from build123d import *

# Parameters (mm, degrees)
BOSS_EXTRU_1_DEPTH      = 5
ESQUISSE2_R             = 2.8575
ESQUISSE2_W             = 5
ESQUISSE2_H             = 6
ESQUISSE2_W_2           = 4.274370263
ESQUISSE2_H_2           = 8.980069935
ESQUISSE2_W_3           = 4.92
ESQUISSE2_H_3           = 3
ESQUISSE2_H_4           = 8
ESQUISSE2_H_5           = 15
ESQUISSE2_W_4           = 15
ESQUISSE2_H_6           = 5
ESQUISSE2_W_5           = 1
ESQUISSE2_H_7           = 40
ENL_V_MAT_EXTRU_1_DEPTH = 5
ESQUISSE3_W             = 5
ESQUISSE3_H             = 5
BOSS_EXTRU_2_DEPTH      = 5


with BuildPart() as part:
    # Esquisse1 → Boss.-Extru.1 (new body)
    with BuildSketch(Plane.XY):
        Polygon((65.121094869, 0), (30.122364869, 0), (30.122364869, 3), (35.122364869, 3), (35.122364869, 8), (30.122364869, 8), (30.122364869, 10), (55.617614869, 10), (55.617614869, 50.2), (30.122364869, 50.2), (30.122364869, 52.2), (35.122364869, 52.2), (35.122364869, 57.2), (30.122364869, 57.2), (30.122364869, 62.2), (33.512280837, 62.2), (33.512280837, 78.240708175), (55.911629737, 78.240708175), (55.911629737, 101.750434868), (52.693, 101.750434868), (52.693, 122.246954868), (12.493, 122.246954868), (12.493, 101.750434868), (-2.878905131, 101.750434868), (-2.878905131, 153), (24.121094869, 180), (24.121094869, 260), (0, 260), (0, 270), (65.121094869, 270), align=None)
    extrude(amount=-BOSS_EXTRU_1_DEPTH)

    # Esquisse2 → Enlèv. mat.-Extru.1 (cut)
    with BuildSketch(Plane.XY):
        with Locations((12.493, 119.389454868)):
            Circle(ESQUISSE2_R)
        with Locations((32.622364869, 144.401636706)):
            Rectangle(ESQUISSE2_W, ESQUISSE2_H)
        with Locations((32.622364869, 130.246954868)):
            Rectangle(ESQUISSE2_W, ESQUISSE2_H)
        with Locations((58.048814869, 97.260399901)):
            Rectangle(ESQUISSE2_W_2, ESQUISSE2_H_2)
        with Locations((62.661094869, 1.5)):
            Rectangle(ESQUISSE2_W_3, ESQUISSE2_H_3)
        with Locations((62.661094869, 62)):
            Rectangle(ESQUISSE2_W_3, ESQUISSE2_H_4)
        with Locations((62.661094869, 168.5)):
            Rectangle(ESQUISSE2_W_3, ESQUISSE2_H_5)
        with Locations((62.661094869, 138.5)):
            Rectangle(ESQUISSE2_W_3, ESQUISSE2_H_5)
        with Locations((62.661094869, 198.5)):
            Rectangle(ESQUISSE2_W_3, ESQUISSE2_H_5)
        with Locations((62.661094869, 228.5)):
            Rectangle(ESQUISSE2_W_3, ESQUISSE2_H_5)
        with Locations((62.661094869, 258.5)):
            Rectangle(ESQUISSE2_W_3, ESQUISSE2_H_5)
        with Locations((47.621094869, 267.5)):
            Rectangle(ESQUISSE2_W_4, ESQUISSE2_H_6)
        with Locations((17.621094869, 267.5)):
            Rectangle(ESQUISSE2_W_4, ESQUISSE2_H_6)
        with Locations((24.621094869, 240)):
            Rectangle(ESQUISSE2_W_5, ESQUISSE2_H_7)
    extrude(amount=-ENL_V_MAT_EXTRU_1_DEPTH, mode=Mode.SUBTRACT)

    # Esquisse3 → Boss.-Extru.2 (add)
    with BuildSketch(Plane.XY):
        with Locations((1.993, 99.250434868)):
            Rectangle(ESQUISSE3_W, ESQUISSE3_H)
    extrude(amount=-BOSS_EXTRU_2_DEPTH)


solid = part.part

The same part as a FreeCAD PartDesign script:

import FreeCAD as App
import Part
import Sketcher

V = App.Vector
Q = App.Units.Quantity

doc = App.newDocument("Part")
params = doc.addObject("Spreadsheet::Sheet", "Params")
for row, (alias, value) in enumerate([
    ("sketch1_width", "5 mm"),
    ("sketch1_height", "270 mm"),
    ("sketch1_height2", "10 mm"),
    ("sketch1_height3", "80 mm"),
    ("sketch1_height4", "2 mm"),
    ("pad1_length", "5 mm"),
    ("sketch2_width", "5 mm"),
    ("sketch2_width2", "15 mm"),
    ("sketch2_width3", "1 mm"),
    ("sketch2_height", "6 mm"),
    ("sketch2_height2", "3 mm"),
    ("pocket1_length", "5 mm"),
    ("sketch3_width", "5 mm"),
    ("pad2_length", "5 mm"),
], start=1):
    params.set(f"A{row}", alias)
    params.set(f"B{row}", "=" + value)
    params.setAlias(f"B{row}", alias)

body = doc.addObject("PartDesign::Body", "Body")

# Sketch on XY plane
sketch1 = body.newObject("Sketcher::SketchObject", "Sketch")
sketch1.AttachmentSupport = (doc.getObject("XY_Plane"), [""])
sketch1.MapMode = "FlatFace"
sketch1.addGeometry([
    Part.LineSegment(V(30.1, 0, 0), V(65.1, 0, 0)),  # 0
    Part.LineSegment(V(65.1, 0, 0), V(65.1, 270, 0)),  # 1
    Part.LineSegment(V(65.1, 270, 0), V(0, 270, 0)),  # 2
    Part.LineSegment(V(0, 270, 0), V(0, 260, 0)),  # 3
    Part.LineSegment(V(0, 260, 0), V(24.1, 260, 0)),  # 4
    Part.LineSegment(V(24.1, 260, 0), V(24.1, 180, 0)),  # 5
    Part.LineSegment(V(24.1, 180, 0), V(-2.9, 153, 0)),  # 6
    Part.LineSegment(V(-2.9, 153, 0), V(-2.9, 101.8, 0)),  # 7
    Part.LineSegment(V(-2.9, 101.8, 0), V(12.5, 101.8, 0)),  # 8
    Part.LineSegment(V(12.5, 101.8, 0), V(12.5, 122.2, 0)),  # 9
    Part.LineSegment(V(12.5, 122.2, 0), V(52.7, 122.2, 0)),  # 10
    Part.LineSegment(V(52.7, 122.2, 0), V(52.7, 101.8, 0)),  # 11
    Part.LineSegment(V(52.7, 101.8, 0), V(55.9, 101.8, 0)),  # 12
    Part.LineSegment(V(55.9, 101.8, 0), V(55.9, 78.2, 0)),  # 13
    Part.LineSegment(V(55.9, 78.2, 0), V(33.5, 78.2, 0)),  # 14
    Part.LineSegment(V(33.5, 78.2, 0), V(33.5, 62.2, 0)),  # 15
    Part.LineSegment(V(33.5, 62.2, 0), V(30.1, 62.2, 0)),  # 16
    Part.LineSegment(V(30.1, 62.2, 0), V(30.1, 57.2, 0)),  # 17
    Part.LineSegment(V(30.1, 57.2, 0), V(35.1, 57.2, 0)),  # 18
    Part.LineSegment(V(35.1, 57.2, 0), V(35.1, 52.2, 0)),  # 19
    Part.LineSegment(V(35.1, 52.2, 0), V(30.1, 52.2, 0)),  # 20
    Part.LineSegment(V(30.1, 52.2, 0), V(30.1, 50.2, 0)),  # 21
    Part.LineSegment(V(30.1, 50.2, 0), V(55.6, 50.2, 0)),  # 22
    Part.LineSegment(V(55.6, 50.2, 0), V(55.6, 10, 0)),  # 23
    Part.LineSegment(V(55.6, 10, 0), V(30.1, 10, 0)),  # 24
    Part.LineSegment(V(30.1, 10, 0), V(30.1, 8, 0)),  # 25
    Part.LineSegment(V(30.1, 8, 0), V(35.1, 8, 0)),  # 26
    Part.LineSegment(V(35.1, 8, 0), V(35.1, 3, 0)),  # 27
    Part.LineSegment(V(35.1, 3, 0), V(30.1, 3, 0)),  # 28
    Part.LineSegment(V(30.1, 3, 0), V(30.1, 0, 0)),  # 29
], False)
sketch1.addConstraint([
    Sketcher.Constraint("Coincident", 0, 2, 1, 1),
    Sketcher.Constraint("Coincident", 1, 2, 2, 1),
    Sketcher.Constraint("Coincident", 2, 2, 3, 1),
    Sketcher.Constraint("Coincident", 3, 2, 4, 1),
    Sketcher.Constraint("Coincident", 4, 2, 5, 1),
    Sketcher.Constraint("Coincident", 5, 2, 6, 1),
    Sketcher.Constraint("Coincident", 6, 2, 7, 1),
    Sketcher.Constraint("Coincident", 7, 2, 8, 1),
    Sketcher.Constraint("Coincident", 8, 2, 9, 1),
    Sketcher.Constraint("Coincident", 9, 2, 10, 1),
    Sketcher.Constraint("Coincident", 10, 2, 11, 1),
    Sketcher.Constraint("Coincident", 11, 2, 12, 1),
    Sketcher.Constraint("Coincident", 12, 2, 13, 1),
    Sketcher.Constraint("Coincident", 13, 2, 14, 1),
    Sketcher.Constraint("Coincident", 14, 2, 15, 1),
    Sketcher.Constraint("Coincident", 15, 2, 16, 1),
    Sketcher.Constraint("Coincident", 16, 2, 17, 1),
    Sketcher.Constraint("Coincident", 17, 2, 18, 1),
    Sketcher.Constraint("Coincident", 18, 2, 19, 1),
    Sketcher.Constraint("Coincident", 19, 2, 20, 1),
    Sketcher.Constraint("Coincident", 20, 2, 21, 1),
    Sketcher.Constraint("Coincident", 21, 2, 22, 1),
    Sketcher.Constraint("Coincident", 22, 2, 23, 1),
    Sketcher.Constraint("Coincident", 23, 2, 24, 1),
    Sketcher.Constraint("Coincident", 24, 2, 25, 1),
    Sketcher.Constraint("Coincident", 25, 2, 26, 1),
    Sketcher.Constraint("Coincident", 26, 2, 27, 1),
    Sketcher.Constraint("Coincident", 27, 2, 28, 1),
    Sketcher.Constraint("Coincident", 28, 2, 29, 1),
    Sketcher.Constraint("Coincident", 29, 2, 0, 1),
    Sketcher.Constraint("Horizontal", 0),
    Sketcher.Constraint("Vertical", 1),
    Sketcher.Constraint("Horizontal", 2),
    Sketcher.Constraint("Vertical", 3),
    Sketcher.Constraint("Horizontal", 4),
    Sketcher.Constraint("Vertical", 5),
    Sketcher.Constraint("Vertical", 7),
    Sketcher.Constraint("Horizontal", 8),
    Sketcher.Constraint("Vertical", 9),
    Sketcher.Constraint("Horizontal", 10),
    Sketcher.Constraint("Vertical", 11),
    Sketcher.Constraint("Horizontal", 12),
    Sketcher.Constraint("Vertical", 13),
    Sketcher.Constraint("Horizontal", 14),
    Sketcher.Constraint("Vertical", 15),
    Sketcher.Constraint("Horizontal", 16),
    Sketcher.Constraint("Vertical", 17),
    Sketcher.Constraint("Horizontal", 18),
    Sketcher.Constraint("Vertical", 19),
    Sketcher.Constraint("Horizontal", 20),
    Sketcher.Constraint("Vertical", 21),
    Sketcher.Constraint("Horizontal", 22),
    Sketcher.Constraint("Vertical", 23),
    Sketcher.Constraint("Horizontal", 24),
    Sketcher.Constraint("Vertical", 25),
    Sketcher.Constraint("Horizontal", 26),
    Sketcher.Constraint("Vertical", 27),
    Sketcher.Constraint("Horizontal", 28),
    Sketcher.Constraint("Vertical", 29),
    Sketcher.Constraint("PointOnObject", 0, 2, -1),
    Sketcher.Constraint("PointOnObject", 2, 2, -2),
    Sketcher.Constraint("Horizontal", 8, 2, 11, 2),
    Sketcher.Constraint("Vertical", 17, 2, 20, 2),
    Sketcher.Constraint("Vertical", 21, 2, 24, 2),
    Sketcher.Constraint("Vertical", 19, 2, 26, 2),
    Sketcher.Constraint("Vertical", 25, 2, 28, 2),
    Sketcher.Constraint("Equal", 28, 17),
    Sketcher.Constraint("Equal", 17, 19),
    Sketcher.Constraint("Equal", 10, 23),
    Sketcher.Constraint("Equal", 21, 25),
    Sketcher.Constraint("Equal", 19, 27),
    Sketcher.Constraint("DistanceX", 18, 1, 18, 2, 5.0),
    Sketcher.Constraint("DistanceY", 1, 1, 1, 2, 270.0),
    Sketcher.Constraint("DistanceY", 3, 2, 3, 1, 10.0),
    Sketcher.Constraint("DistanceY", 5, 2, 5, 1, 80.0),
    Sketcher.Constraint("DistanceY", 21, 2, 21, 1, 2.0),
    Sketcher.Constraint("DistanceY", 29, 2, 29, 1, 3.0),
    Sketcher.Constraint("Angle", 6, Q("-135 deg")),
    Sketcher.Constraint("DistanceX", 10, 1, 10, 2, 40.2),
    Sketcher.Constraint("DistanceY", -1, 1, 6, 2, 153.0),
    Sketcher.Constraint("DistanceX", 4, 2, 1, 2, 41.0),
    Sketcher.Constraint("DistanceX", -1, 1, 8, 2, 12.493),
    Sketcher.Constraint("DistanceX", 0, 1, 0, 2, 34.99873),
    Sketcher.Constraint("DistanceX", 12, 1, 12, 2, 3.21863),
    Sketcher.Constraint("DistanceX", 14, 2, 14, 1, 22.399349),
    Sketcher.Constraint("DistanceX", 22, 1, 22, 2, 25.49525),
    Sketcher.Constraint("DistanceY", 9, 1, 9, 2, 20.49652),
    Sketcher.Constraint("DistanceY", 15, 2, 15, 1, 16.040708),
    Sketcher.Constraint("DistanceX", 2, 2, 2, 1, 65.121095),
    Sketcher.Constraint("DistanceY", 7, 2, 7, 1, 51.249565),
])
sketch1.setExpression("Constraints[71]", "Params.sketch1_width")
sketch1.setExpression("Constraints[72]", "Params.sketch1_height")
sketch1.setExpression("Constraints[73]", "Params.sketch1_height2")
sketch1.setExpression("Constraints[74]", "Params.sketch1_height3")
sketch1.setExpression("Constraints[75]", "Params.sketch1_height4")
pad1 = body.newObject("PartDesign::Pad", "Pad")
pad1.Profile = sketch1
pad1.setExpression("Length", "Params.pad1_length")
pad1.Reversed = True

# Sketch on XY plane
sketch2 = body.newObject("Sketcher::SketchObject", "Sketch001")
sketch2.AttachmentSupport = (doc.getObject("XY_Plane"), [""])
sketch2.MapMode = "FlatFace"
sketch2.addGeometry([
    Part.Circle(V(12.5, 119.4, 0), V(0, 0, 1), 2.9),  # 0
    Part.LineSegment(V(30.1, 147.4, 0), V(30.1, 141.4, 0)),  # 1
    Part.LineSegment(V(30.1, 141.4, 0), V(35.1, 141.4, 0)),  # 2
    Part.LineSegment(V(35.1, 141.4, 0), V(35.1, 147.4, 0)),  # 3
    Part.LineSegment(V(35.1, 147.4, 0), V(30.1, 147.4, 0)),  # 4
    Part.LineSegment(V(30.1, 133.2, 0), V(30.1, 127.2, 0)),  # 5
    Part.LineSegment(V(30.1, 127.2, 0), V(35.1, 127.2, 0)),  # 6
    Part.LineSegment(V(35.1, 127.2, 0), V(35.1, 133.2, 0)),  # 7
    Part.LineSegment(V(35.1, 133.2, 0), V(30.1, 133.2, 0)),  # 8
    Part.LineSegment(V(55.9, 101.8, 0), V(55.9, 92.8, 0)),  # 9
    Part.LineSegment(V(55.9, 92.8, 0), V(60.2, 92.8, 0)),  # 10
    Part.LineSegment(V(60.2, 92.8, 0), V(60.2, 101.8, 0)),  # 11
    Part.LineSegment(V(60.2, 101.8, 0), V(55.9, 101.8, 0)),  # 12
    Part.LineSegment(V(60.2, 3, 0), V(60.2, 0, 0)),  # 13
    Part.LineSegment(V(60.2, 0, 0), V(65.1, 0, 0)),  # 14
    Part.LineSegment(V(65.1, 0, 0), V(65.1, 3, 0)),  # 15
    Part.LineSegment(V(65.1, 3, 0), V(60.2, 3, 0)),  # 16
    Part.LineSegment(V(60.2, 66, 0), V(60.2, 58, 0)),  # 17
    Part.LineSegment(V(60.2, 58, 0), V(65.1, 58, 0)),  # 18
    Part.LineSegment(V(65.1, 58, 0), V(65.1, 66, 0)),  # 19
    Part.LineSegment(V(65.1, 66, 0), V(60.2, 66, 0)),  # 20
    Part.LineSegment(V(60.2, 176, 0), V(60.2, 161, 0)),  # 21
    Part.LineSegment(V(60.2, 161, 0), V(65.1, 161, 0)),  # 22
    Part.LineSegment(V(65.1, 161, 0), V(65.1, 176, 0)),  # 23
    Part.LineSegment(V(65.1, 176, 0), V(60.2, 176, 0)),  # 24
    Part.LineSegment(V(60.2, 146, 0), V(60.2, 131, 0)),  # 25
    Part.LineSegment(V(60.2, 131, 0), V(65.1, 131, 0)),  # 26
    Part.LineSegment(V(65.1, 131, 0), V(65.1, 146, 0)),  # 27
    Part.LineSegment(V(65.1, 146, 0), V(60.2, 146, 0)),  # 28
    Part.LineSegment(V(60.2, 206, 0), V(60.2, 191, 0)),  # 29
    Part.LineSegment(V(60.2, 191, 0), V(65.1, 191, 0)),  # 30
    Part.LineSegment(V(65.1, 191, 0), V(65.1, 206, 0)),  # 31
    Part.LineSegment(V(65.1, 206, 0), V(60.2, 206, 0)),  # 32
    Part.LineSegment(V(60.2, 236, 0), V(60.2, 221, 0)),  # 33
    Part.LineSegment(V(60.2, 221, 0), V(65.1, 221, 0)),  # 34
    Part.LineSegment(V(65.1, 221, 0), V(65.1, 236, 0)),  # 35
    Part.LineSegment(V(65.1, 236, 0), V(60.2, 236, 0)),  # 36
    Part.LineSegment(V(60.2, 266, 0), V(60.2, 251, 0)),  # 37
    Part.LineSegment(V(60.2, 251, 0), V(65.1, 251, 0)),  # 38
    Part.LineSegment(V(65.1, 251, 0), V(65.1, 266, 0)),  # 39
    Part.LineSegment(V(65.1, 266, 0), V(60.2, 266, 0)),  # 40
    Part.LineSegment(V(40.1, 270, 0), V(40.1, 265, 0)),  # 41
    Part.LineSegment(V(40.1, 265, 0), V(55.1, 265, 0)),  # 42
    Part.LineSegment(V(55.1, 265, 0), V(55.1, 270, 0)),  # 43
    Part.LineSegment(V(55.1, 270, 0), V(40.1, 270, 0)),  # 44
    Part.LineSegment(V(10.1, 270, 0), V(10.1, 265, 0)),  # 45
    Part.LineSegment(V(10.1, 265, 0), V(25.1, 265, 0)),  # 46
    Part.LineSegment(V(25.1, 265, 0), V(25.1, 270, 0)),  # 47
    Part.LineSegment(V(25.1, 270, 0), V(10.1, 270, 0)),  # 48
    Part.LineSegment(V(24.1, 260, 0), V(24.1, 220, 0)),  # 49
    Part.LineSegment(V(24.1, 220, 0), V(25.1, 220, 0)),  # 50
    Part.LineSegment(V(25.1, 220, 0), V(25.1, 260, 0)),  # 51
    Part.LineSegment(V(25.1, 260, 0), V(24.1, 260, 0)),  # 52
], False)
sketch2.addConstraint([
    Sketcher.Constraint("Coincident", 1, 2, 2, 1),
    Sketcher.Constraint("Coincident", 2, 2, 3, 1),
    Sketcher.Constraint("Coincident", 3, 2, 4, 1),
    Sketcher.Constraint("Coincident", 4, 2, 1, 1),
    Sketcher.Constraint("Coincident", 5, 2, 6, 1),
    Sketcher.Constraint("Coincident", 6, 2, 7, 1),
    Sketcher.Constraint("Coincident", 7, 2, 8, 1),
    Sketcher.Constraint("Coincident", 8, 2, 5, 1),
    Sketcher.Constraint("Coincident", 9, 2, 10, 1),
    Sketcher.Constraint("Coincident", 10, 2, 11, 1),
    Sketcher.Constraint("Coincident", 11, 2, 12, 1),
    Sketcher.Constraint("Coincident", 12, 2, 9, 1),
    Sketcher.Constraint("Coincident", 13, 2, 14, 1),
    Sketcher.Constraint("Coincident", 14, 2, 15, 1),
    Sketcher.Constraint("Coincident", 15, 2, 16, 1),
    Sketcher.Constraint("Coincident", 16, 2, 13, 1),
    Sketcher.Constraint("Coincident", 17, 2, 18, 1),
    Sketcher.Constraint("Coincident", 18, 2, 19, 1),
    Sketcher.Constraint("Coincident", 19, 2, 20, 1),
    Sketcher.Constraint("Coincident", 20, 2, 17, 1),
    Sketcher.Constraint("Coincident", 21, 2, 22, 1),
    Sketcher.Constraint("Coincident", 22, 2, 23, 1),
    Sketcher.Constraint("Coincident", 23, 2, 24, 1),
    Sketcher.Constraint("Coincident", 24, 2, 21, 1),
    Sketcher.Constraint("Coincident", 25, 2, 26, 1),
    Sketcher.Constraint("Coincident", 26, 2, 27, 1),
    Sketcher.Constraint("Coincident", 27, 2, 28, 1),
    Sketcher.Constraint("Coincident", 28, 2, 25, 1),
    Sketcher.Constraint("Coincident", 29, 2, 30, 1),
    Sketcher.Constraint("Coincident", 30, 2, 31, 1),
    Sketcher.Constraint("Coincident", 31, 2, 32, 1),
    Sketcher.Constraint("Coincident", 32, 2, 29, 1),
    Sketcher.Constraint("Coincident", 33, 2, 34, 1),
    Sketcher.Constraint("Coincident", 34, 2, 35, 1),
    Sketcher.Constraint("Coincident", 35, 2, 36, 1),
    Sketcher.Constraint("Coincident", 36, 2, 33, 1),
    Sketcher.Constraint("Coincident", 37, 2, 38, 1),
    Sketcher.Constraint("Coincident", 38, 2, 39, 1),
    Sketcher.Constraint("Coincident", 39, 2, 40, 1),
    Sketcher.Constraint("Coincident", 40, 2, 37, 1),
    Sketcher.Constraint("Coincident", 41, 2, 42, 1),
    Sketcher.Constraint("Coincident", 42, 2, 43, 1),
    Sketcher.Constraint("Coincident", 43, 2, 44, 1),
    Sketcher.Constraint("Coincident", 44, 2, 41, 1),
    Sketcher.Constraint("Coincident", 45, 2, 46, 1),
    Sketcher.Constraint("Coincident", 46, 2, 47, 1),
    Sketcher.Constraint("Coincident", 47, 2, 48, 1),
    Sketcher.Constraint("Coincident", 48, 2, 45, 1),
    Sketcher.Constraint("Coincident", 49, 2, 50, 1),
    Sketcher.Constraint("Coincident", 50, 2, 51, 1),
    Sketcher.Constraint("Coincident", 51, 2, 52, 1),
    Sketcher.Constraint("Coincident", 52, 2, 49, 1),
    Sketcher.Constraint("Vertical", 1),
    Sketcher.Constraint("Horizontal", 2),
    Sketcher.Constraint("Vertical", 3),
    Sketcher.Constraint("Horizontal", 4),
    Sketcher.Constraint("Vertical", 5),
    Sketcher.Constraint("Horizontal", 6),
    Sketcher.Constraint("Vertical", 7),
    Sketcher.Constraint("Horizontal", 8),
    Sketcher.Constraint("Vertical", 9),
    Sketcher.Constraint("Horizontal", 10),
    Sketcher.Constraint("Vertical", 11),
    Sketcher.Constraint("Horizontal", 12),
    Sketcher.Constraint("Vertical", 13),
    Sketcher.Constraint("Horizontal", 14),
    Sketcher.Constraint("Vertical", 15),
    Sketcher.Constraint("Horizontal", 16),
    Sketcher.Constraint("Vertical", 17),
    Sketcher.Constraint("Horizontal", 18),
    Sketcher.Constraint("Vertical", 19),
    Sketcher.Constraint("Horizontal", 20),
    Sketcher.Constraint("Vertical", 21),
    Sketcher.Constraint("Horizontal", 22),
    Sketcher.Constraint("Vertical", 23),
    Sketcher.Constraint("Horizontal", 24),
    Sketcher.Constraint("Vertical", 25),
    Sketcher.Constraint("Horizontal", 26),
    Sketcher.Constraint("Vertical", 27),
    Sketcher.Constraint("Horizontal", 28),
    Sketcher.Constraint("Vertical", 29),
    Sketcher.Constraint("Horizontal", 30),
    Sketcher.Constraint("Vertical", 31),
    Sketcher.Constraint("Horizontal", 32),
    Sketcher.Constraint("Vertical", 33),
    Sketcher.Constraint("Horizontal", 34),
    Sketcher.Constraint("Vertical", 35),
    Sketcher.Constraint("Horizontal", 36),
    Sketcher.Constraint("Vertical", 37),
    Sketcher.Constraint("Horizontal", 38),
    Sketcher.Constraint("Vertical", 39),
    Sketcher.Constraint("Horizontal", 40),
    Sketcher.Constraint("Vertical", 41),
    Sketcher.Constraint("Horizontal", 42),
    Sketcher.Constraint("Vertical", 43),
    Sketcher.Constraint("Horizontal", 44),
    Sketcher.Constraint("Vertical", 45),
    Sketcher.Constraint("Horizontal", 46),
    Sketcher.Constraint("Vertical", 47),
    Sketcher.Constraint("Horizontal", 48),
    Sketcher.Constraint("Vertical", 49),
    Sketcher.Constraint("Horizontal", 50),
    Sketcher.Constraint("Vertical", 51),
    Sketcher.Constraint("Horizontal", 52),
    Sketcher.Constraint("PointOnObject", 13, 2, -1),
    Sketcher.Constraint("Horizontal", 42, 2, 45, 2),
    Sketcher.Constraint("Horizontal", 44, 2, 47, 2),
    Sketcher.Constraint("Vertical", 4, 2, 5, 2),
    Sketcher.Constraint("Vertical", 3, 2, 6, 2),
    Sketcher.Constraint("Vertical", 16, 2, 17, 2),
    Sketcher.Constraint("Vertical", 15, 2, 18, 2),
    Sketcher.Constraint("Vertical", 20, 2, 21, 2),
    Sketcher.Constraint("Vertical", 19, 2, 22, 2),
    Sketcher.Constraint("Vertical", 24, 2, 25, 2),
    Sketcher.Constraint("Vertical", 23, 2, 26, 2),
    Sketcher.Constraint("Vertical", 28, 2, 29, 2),
    Sketcher.Constraint("Vertical", 27, 2, 30, 2),
    Sketcher.Constraint("Vertical", 32, 2, 33, 2),
    Sketcher.Constraint("Vertical", 31, 2, 34, 2),
    Sketcher.Constraint("Vertical", 36, 2, 37, 2),
    Sketcher.Constraint("Vertical", 35, 2, 38, 2),
    Sketcher.Constraint("Vertical", 47, 2, 50, 2),
    Sketcher.Constraint("Equal", 44, 46),
    Sketcher.Constraint("Equal", 3, 5),
    Sketcher.Constraint("Equal", 48, 21),
    Sketcher.Constraint("Equal", 23, 25),
    Sketcher.Constraint("Equal", 27, 29),
    Sketcher.Constraint("Equal", 31, 33),
    Sketcher.Constraint("Equal", 35, 37),
    Sketcher.Constraint("Equal", 8, 41),
    Sketcher.Constraint("DistanceX", 2, 1, 2, 2, 5.0),
    Sketcher.Constraint("DistanceX", 42, 1, 42, 2, 15.0),
    Sketcher.Constraint("DistanceX", 50, 1, 50, 2, 1.0),
    Sketcher.Constraint("DistanceY", 1, 2, 1, 1, 6.0),
    Sketcher.Constraint("DistanceY", 13, 2, 13, 1, 3.0),
    Sketcher.Constraint("DistanceY", 17, 2, 17, 1, 8.0),
    Sketcher.Constraint("DistanceY", 49, 2, 49, 1, 40.0),
    Sketcher.Constraint("Diameter", 0, 5.715),
    Sketcher.Constraint("DistanceY", -1, 1, 17, 2, 58.0),
    Sketcher.Constraint("DistanceY", -1, 1, 21, 2, 161.0),
    Sketcher.Constraint("DistanceY", -1, 1, 25, 2, 131.0),
    Sketcher.Constraint("DistanceY", -1, 1, 29, 2, 191.0),
    Sketcher.Constraint("DistanceY", -1, 1, 33, 2, 221.0),
    Sketcher.Constraint("DistanceY", -1, 1, 37, 2, 251.0),
    Sketcher.Constraint("DistanceY", -1, 1, 41, 2, 265.0),
    Sketcher.Constraint("DistanceY", -1, 1, 49, 2, 220.0),
    Sketcher.Constraint("DistanceX", 41, 2, 39, 2, 25.0),
    Sketcher.Constraint("DistanceX", 45, 2, 41, 2, 30.0),
    Sketcher.Constraint("DistanceX", 14, 1, 14, 2, 4.92),
    Sketcher.Constraint("DistanceX", -1, 1, 0, 3, 12.493),
    Sketcher.Constraint("DistanceX", -1, 1, 10, 2, 60.186),
    Sketcher.Constraint("DistanceX", 10, 1, 10, 2, 4.27437),
    Sketcher.Constraint("DistanceY", 9, 2, 9, 1, 8.98007),
    Sketcher.Constraint("DistanceY", 0, 3, 5, 2, 7.8575),
    Sketcher.Constraint("DistanceY", 0, 3, 1, 2, 22.012182),
    Sketcher.Constraint("DistanceY", 9, 2, 6, 2, 34.47659),
    Sketcher.Constraint("DistanceX", 3, 2, 21, 2, 25.07873),
    Sketcher.Constraint("DistanceY", -1, 1, 0, 3, 119.389455),
    Sketcher.Constraint("DistanceX", -1, 1, 1, 2, 30.122365),
])
sketch2.setExpression("Constraints[130]", "Params.sketch2_width")
sketch2.setExpression("Constraints[131]", "Params.sketch2_width2")
sketch2.setExpression("Constraints[132]", "Params.sketch2_width3")
sketch2.setExpression("Constraints[133]", "Params.sketch2_height")
sketch2.setExpression("Constraints[134]", "Params.sketch2_height2")
pocket1 = body.newObject("PartDesign::Pocket", "Pocket")
pocket1.Profile = sketch2
pocket1.setExpression("Length", "Params.pocket1_length")

# Sketch on XY plane
sketch3 = body.newObject("Sketcher::SketchObject", "Sketch002")
sketch3.AttachmentSupport = (doc.getObject("XY_Plane"), [""])
sketch3.MapMode = "FlatFace"
sketch3.addGeometry([
    Part.LineSegment(V(-1, 102, 0), V(-1, 97, 0)),
    Part.LineSegment(V(-1, 97, 0), V(4, 97, 0)),
    Part.LineSegment(V(4, 97, 0), V(4, 102, 0)),
    Part.LineSegment(V(4, 102, 0), V(-1, 102, 0)),
], False)
sketch3.addConstraint([
    Sketcher.Constraint("Coincident", 0, 2, 1, 1),
    Sketcher.Constraint("Coincident", 1, 2, 2, 1),
    Sketcher.Constraint("Coincident", 2, 2, 3, 1),
    Sketcher.Constraint("Coincident", 3, 2, 0, 1),
    Sketcher.Constraint("Vertical", 0),
    Sketcher.Constraint("Horizontal", 1),
    Sketcher.Constraint("Vertical", 2),
    Sketcher.Constraint("Horizontal", 3),
    Sketcher.Constraint("Equal", 3, 0),
    Sketcher.Constraint("DistanceX", 1, 1, 1, 2, 5.0),
    Sketcher.Constraint("DistanceX", 0, 2, -1, 1, 0.507),
    Sketcher.Constraint("DistanceY", -1, 1, 0, 2, 96.750435),
])
sketch3.setExpression("Constraints[9]", "Params.sketch3_width")
pad2 = body.newObject("PartDesign::Pad", "Pad001")
pad2.Profile = sketch3
pad2.setExpression("Length", "Params.pad2_length")
pad2.Reversed = True

doc.recompute()
